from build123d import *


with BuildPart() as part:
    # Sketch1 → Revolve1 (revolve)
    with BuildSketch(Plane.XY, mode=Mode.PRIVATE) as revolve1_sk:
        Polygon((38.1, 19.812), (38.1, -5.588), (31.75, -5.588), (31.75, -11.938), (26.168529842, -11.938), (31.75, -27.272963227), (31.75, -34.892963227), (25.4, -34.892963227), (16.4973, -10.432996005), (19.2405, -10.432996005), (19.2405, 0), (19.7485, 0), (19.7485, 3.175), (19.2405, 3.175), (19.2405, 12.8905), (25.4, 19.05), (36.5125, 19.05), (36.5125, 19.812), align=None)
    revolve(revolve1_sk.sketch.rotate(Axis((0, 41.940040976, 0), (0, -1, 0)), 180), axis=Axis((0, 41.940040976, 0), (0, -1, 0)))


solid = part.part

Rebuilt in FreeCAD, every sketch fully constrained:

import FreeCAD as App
import Part
import Sketcher
Q = App.Units.Quantity


def add_polygon(sketch, points):
    """Adds a closed chain of lines whose ends are joined by coincident constraints."""
    first, n = sketch.GeometryCount, len(points)
    for a, b in zip(points, points[1:] + points[:1]):
        sketch.addGeometry(Part.LineSegment(App.Vector(*a, 0), App.Vector(*b, 0)), False)
    for i in range(n):
        sketch.addConstraint(Sketcher.Constraint("Coincident", first + i, 2, first + (i + 1) % n, 1))

doc = App.newDocument("Part")
body = doc.addObject("PartDesign::Body", "Body")

# Sketch on XY plane
sketch1 = doc.addObject("Sketcher::SketchObject", "Sketch")
body.addObject(sketch1)
sketch1.AttachmentSupport = (doc.XY_Plane, [""])
sketch1.MapMode = "FlatFace"
add_polygon(sketch1, [(38.1, -5.6), (38.1, 19.8), (36.5, 19.8), (36.5, 19.1), (25.4, 19.1), (19.2, 12.9), (19.2, 3.2), (19.7, 3.2), (19.7, 0), (19.2, 0), (19.2, -10.4), (16.5, -10.4), (25.4, -34.9), (31.8, -34.9), (31.8, -27.3), (26.2, -11.9), (31.8, -11.9), (31.8, -5.6)])  # lines 0-17
sketch1.addConstraint([
    Sketcher.Constraint("Vertical", 0),
    Sketcher.Constraint("Horizontal", 1),
    Sketcher.Constraint("Vertical", 2),
    Sketcher.Constraint("Horizontal", 3),
    Sketcher.Constraint("Vertical", 5),
    Sketcher.Constraint("Horizontal", 6),
    Sketcher.Constraint("Vertical", 7),
    Sketcher.Constraint("Horizontal", 8),
    Sketcher.Constraint("Vertical", 9),
    Sketcher.Constraint("Horizontal", 10),
    Sketcher.Constraint("Horizontal", 12),
    Sketcher.Constraint("Vertical", 13),
    Sketcher.Constraint("Horizontal", 15),
    Sketcher.Constraint("Vertical", 16),
    Sketcher.Constraint("Horizontal", 17),
    Sketcher.Constraint("PointOnObject", 7, 2, -1),
    Sketcher.Constraint("Parallel", 11, 14),
    Sketcher.Constraint("Vertical", 5, 2, 8, 2),
    Sketcher.Constraint("Vertical", 3, 2, 11, 2),
    Sketcher.Constraint("Vertical", 13, 2, 15, 2),
    Sketcher.Constraint("Equal", 12, 17),
    Sketcher.Constraint("Equal", 17, 16),
    Sketcher.Constraint("DistanceY", 0, 1, 0, 2, Q("1 in")),
    Sketcher.Constraint("DistanceY", 13, 1, 13, 2, Q("0.3 in")),
    Sketcher.Constraint("DistanceX", -1, 1, 3, 2, Q("1 in")),
    Sketcher.Constraint("Angle", 4, Q("-135 deg")),
    Sketcher.Constraint("Angle", 11, Q("-70 deg")),
    Sketcher.Constraint("DistanceX", 6, 1, 6, 2, Q("0.02 in")),
    Sketcher.Constraint("DistanceX", 12, 1, 12, 2, Q("0.25 in")),
    Sketcher.Constraint("DistanceY", 2, 2, 2, 1, Q("0.03 in")),
    Sketcher.Constraint("DistanceX", 1, 2, 1, 1, Q("0.0625 in")),
    Sketcher.Constraint("DistanceX", 10, 2, 10, 1, Q("0.108 in")),
    Sketcher.Constraint("DistanceY", 7, 2, 7, 1, Q("0.125 in")),
    Sketcher.Constraint("DistanceY", -1, 1, 0, 2, Q("0.78 in")),
    Sketcher.Constraint("DistanceX", 4, 2, 2, 2, Q("0.68 in")),
    Sketcher.Constraint("DistanceX", 15, 1, 15, 2, Q("5.58147 mm")),
])
revolution = doc.addObject("PartDesign::Revolution", "Revolution")
body.addObject(revolution)
revolution.Profile = sketch1
revolution.ReferenceAxis = (sketch1, ["V_Axis"])
revolution.Angle = 360

doc.recompute()
